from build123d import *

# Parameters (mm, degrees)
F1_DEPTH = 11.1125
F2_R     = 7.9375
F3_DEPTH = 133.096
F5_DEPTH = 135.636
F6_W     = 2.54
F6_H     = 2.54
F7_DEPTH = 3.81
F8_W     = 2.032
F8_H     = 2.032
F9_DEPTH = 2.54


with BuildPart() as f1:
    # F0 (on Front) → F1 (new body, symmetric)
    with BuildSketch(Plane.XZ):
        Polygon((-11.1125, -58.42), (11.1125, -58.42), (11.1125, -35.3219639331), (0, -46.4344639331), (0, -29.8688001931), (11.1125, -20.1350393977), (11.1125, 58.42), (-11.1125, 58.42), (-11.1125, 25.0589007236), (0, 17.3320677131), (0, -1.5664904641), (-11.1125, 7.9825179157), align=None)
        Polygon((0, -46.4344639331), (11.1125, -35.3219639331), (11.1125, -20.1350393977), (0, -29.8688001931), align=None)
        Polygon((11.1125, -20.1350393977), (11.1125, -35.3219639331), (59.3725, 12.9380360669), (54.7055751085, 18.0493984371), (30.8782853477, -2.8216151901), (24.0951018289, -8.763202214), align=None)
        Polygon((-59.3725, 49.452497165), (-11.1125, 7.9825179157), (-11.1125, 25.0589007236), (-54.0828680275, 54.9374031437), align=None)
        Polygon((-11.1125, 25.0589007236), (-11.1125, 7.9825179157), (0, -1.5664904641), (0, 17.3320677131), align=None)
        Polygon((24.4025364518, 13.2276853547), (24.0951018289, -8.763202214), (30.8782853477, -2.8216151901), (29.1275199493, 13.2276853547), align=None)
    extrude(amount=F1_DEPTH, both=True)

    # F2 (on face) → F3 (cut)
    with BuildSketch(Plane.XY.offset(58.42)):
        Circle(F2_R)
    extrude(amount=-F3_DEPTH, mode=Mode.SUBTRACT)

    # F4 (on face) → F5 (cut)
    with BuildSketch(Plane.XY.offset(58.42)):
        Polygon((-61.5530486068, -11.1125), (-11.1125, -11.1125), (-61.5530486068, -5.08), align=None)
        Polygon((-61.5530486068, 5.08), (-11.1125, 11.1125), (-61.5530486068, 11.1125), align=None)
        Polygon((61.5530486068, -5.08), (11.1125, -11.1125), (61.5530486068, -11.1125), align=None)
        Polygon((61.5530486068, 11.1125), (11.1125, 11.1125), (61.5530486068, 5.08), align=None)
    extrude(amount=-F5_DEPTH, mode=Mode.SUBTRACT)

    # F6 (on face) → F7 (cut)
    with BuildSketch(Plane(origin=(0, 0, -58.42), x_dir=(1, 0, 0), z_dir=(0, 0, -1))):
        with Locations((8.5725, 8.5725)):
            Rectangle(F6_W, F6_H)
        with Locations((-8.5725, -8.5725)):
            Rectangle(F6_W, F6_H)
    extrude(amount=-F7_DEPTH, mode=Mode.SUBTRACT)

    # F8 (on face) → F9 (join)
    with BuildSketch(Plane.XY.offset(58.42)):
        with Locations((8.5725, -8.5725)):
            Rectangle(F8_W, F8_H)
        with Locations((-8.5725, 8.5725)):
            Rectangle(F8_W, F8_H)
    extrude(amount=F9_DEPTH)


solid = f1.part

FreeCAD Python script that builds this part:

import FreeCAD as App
import Part
import Sketcher

V = App.Vector
Q = App.Units.Quantity


def add_polygon(sketch, points):
    """Adds a closed chain of lines whose ends are joined by coincident constraints."""
    first, n = sketch.GeometryCount, len(points)
    for a, b in zip(points, points[1:] + points[:1]):
        sketch.addGeometry(Part.LineSegment(App.Vector(*a, 0), App.Vector(*b, 0)), False)
    for i in range(n):
        sketch.addConstraint(Sketcher.Constraint("Coincident", first + i, 2, first + (i + 1) % n, 1))

doc = App.newDocument("Part")
body = doc.addObject("PartDesign::Body", "Body")

sketch1 = body.newObject("Sketcher::SketchObject", "Sketch")
sketch1.AttachmentSupport = (doc.getObject("XZ_Plane"), [""])
sketch1.MapMode = "FlatFace"
add_polygon(sketch1, [(-11.1, -58.4), (11.1, -58.4), (11.1, -35.3), (59.4, 12.9), (54.7, 18), (30.9, -2.8), (29.1, 13.2), (24.4, 13.2), (24.1, -8.8), (11.1, -20.1), (11.1, 58.4), (-11.1, 58.4), (-11.1, 25.1), (-54.1, 54.9), (-59.4, 49.5), (-11.1, 8)])
sketch1.addConstraint([
    Sketcher.Constraint("Horizontal", 0),
    Sketcher.Constraint("Vertical", 1),
    Sketcher.Constraint("Horizontal", 6),
    Sketcher.Constraint("Vertical", 9),
    Sketcher.Constraint("Horizontal", 10),
    Sketcher.Constraint("Vertical", 11),
    Sketcher.Constraint("Vertical", 15),
    Sketcher.Constraint("Symmetric", 0, 2, 10, 2, -1, 1),
    Sketcher.Constraint("Parallel", 4, 8),
    Sketcher.Constraint("Vertical", 1, 2, 8, 2),
    Sketcher.Constraint("Vertical", 11, 2, 14, 2),
    Sketcher.Constraint("Angle", 2, Q("45 deg")),
    Sketcher.Constraint("Distance", 13, Q("0.3 in")),
    Sketcher.Constraint("DistanceY", 0, 2, -1, 1, Q("2.3 in")),
    Sketcher.Constraint("DistanceX", 1, 2, 2, 2, Q("1.9 in")),
    Sketcher.Constraint("DistanceX", 13, 2, 10, 2, Q("1.9 in")),
    Sketcher.Constraint("DistanceX", 0, 1, 0, 2, Q("0.875 in")),
    Sketcher.Constraint("DistanceY", 11, 2, 11, 1, Q("33.361099 mm")),
    Sketcher.Constraint("DistanceY", 9, 1, 9, 2, Q("78.555039 mm")),
    Sketcher.Constraint("DistanceY", -1, 1, 3, 2, Q("18.049398 mm")),
    Sketcher.Constraint("DistanceX", -1, 1, 7, 2, Q("24.095102 mm")),
    Sketcher.Constraint("DistanceY", 4, 2, 5, 2, Q("16.049301 mm")),
    Sketcher.Constraint("DistanceY", 7, 2, 3, 2, Q("26.812601 mm")),
    Sketcher.Constraint("Distance", 3, Q("6.921431 mm")),
    Sketcher.Constraint("Distance", 5, Q("16.144511 mm")),
    Sketcher.Constraint("Distance", 12, Q("52.337152 mm")),
    Sketcher.Constraint("DistanceX", 6, 2, 6, 1, Q("4.724983 mm")),
    Sketcher.Constraint("DistanceY", 1, 1, 1, 2, Q("23.098036 mm")),
    Sketcher.Constraint("DistanceY", 15, 2, 15, 1, Q("66.402518 mm")),
    Sketcher.Constraint("DistanceX", -1, 1, 5, 2, Q("29.12752 mm")),
    Sketcher.Constraint("DistanceX", 12, 2, -1, 1, Q("54.082868 mm")),
])
pad1 = body.newObject("PartDesign::Pad", "Pad")
pad1.Profile = sketch1
pad1.Length = Q("0.875 in")
pad1.Midplane = True

sketch2 = body.newObject("Sketcher::SketchObject", "Sketch001")
sketch2.AttachmentSupport = (doc.getObject("XY_Plane"), [""])
sketch2.MapMode = "FlatFace"
sketch2.AttachmentOffset = App.Placement(V(0, 0, 2.3 * 25.4), App.Rotation())
sketch2.addGeometry(Part.Circle(V(0, 0, 0), V(0, 0, 1), 8), False)
sketch2.addConstraint([
    Sketcher.Constraint("Coincident", 0, 3, -1, 1),
    Sketcher.Constraint("Diameter", 0, Q("0.625 in")),
])
pocket1 = body.newObject("PartDesign::Pocket", "Pocket")
pocket1.Profile = sketch2
pocket1.Length = Q("5.24 in")

sketch3 = body.newObject("Sketcher::SketchObject", "Sketch002")
sketch3.AttachmentSupport = (doc.getObject("XY_Plane"), [""])
sketch3.MapMode = "FlatFace"
sketch3.AttachmentOffset = App.Placement(V(0, 0, 2.3 * 25.4), App.Rotation())
add_polygon(sketch3, [(-62, -11), (-11, -11), (-62, -5)])
add_polygon(sketch3, [(-62, 5), (-11, 11), (-62, 11)])
add_polygon(sketch3, [(62, -5), (11, -11), (62, -11)])
add_polygon(sketch3, [(62, 11), (11, 11), (62, 5)])
sketch3.addConstraint([
    Sketcher.Constraint("Horizontal", 0),
    Sketcher.Constraint("Vertical", 2),
    Sketcher.Constraint("Horizontal", 4),
    Sketcher.Constraint("Vertical", 5),
    Sketcher.Constraint("Horizontal", 7),
    Sketcher.Constraint("Vertical", 8),
    Sketcher.Constraint("Horizontal", 9),
    Sketcher.Constraint("Vertical", 11),
    Sketcher.Constraint("Symmetric", 3, 2, 6, 2, -1, 1),
    Sketcher.Constraint("Symmetric", 5, 2, 8, 2, -1, 1),
    Sketcher.Constraint("Symmetric", 0, 2, 9, 2, -1, 1),
    Sketcher.Constraint("Symmetric", 1, 2, 10, 2, -1, 1),
    Sketcher.Constraint("Symmetric", 0, 2, 6, 2, -2),
    Sketcher.Constraint("Symmetric", 1, 2, 8, 2, -2),
    Sketcher.Constraint("Distance", 1, Q("2 in")),
    Sketcher.Constraint("DistanceY", 1, 2, -1, 1, Q("0.2 in")),
    Sketcher.Constraint("DistanceY", 2, 2, 2, 1, Q("0.2375 in")),
    Sketcher.Constraint("DistanceX", 0, 2, -1, 1, Q("0.4375 in")),
])
pocket2 = body.newObject("PartDesign::Pocket", "Pocket001")
pocket2.Profile = sketch3
pocket2.Length = Q("5.34 in")

sketch4 = body.newObject("Sketcher::SketchObject", "Sketch003")
sketch4.AttachmentSupport = (doc.getObject("XY_Plane"), [""])
sketch4.MapMode = "FlatFace"
sketch4.AttachmentOffset = App.Placement(V(0, 0, -2.3 * 25.4), App.Rotation())
add_polygon(sketch4, [(7.3, -9.8), (7.3, -7.3), (9.8, -7.3), (9.8, -9.8)])
add_polygon(sketch4, [(-9.8, 7.3), (-9.8, 9.8), (-7.3, 9.8), (-7.3, 7.3)])
sketch4.addConstraint([
    Sketcher.Constraint("Vertical", 0),
    Sketcher.Constraint("Horizontal", 1),
    Sketcher.Constraint("Vertical", 2),
    Sketcher.Constraint("Horizontal", 3),
    Sketcher.Constraint("Vertical", 4),
    Sketcher.Constraint("Horizontal", 5),
    Sketcher.Constraint("Vertical", 6),
    Sketcher.Constraint("Horizontal", 7),
    Sketcher.Constraint("Symmetric", 2, 2, 4, 2, -1, 1),
    Sketcher.Constraint("Symmetric", 0, 2, 6, 2, -1, 1),
    Sketcher.Constraint("Equal", 7, 0),
    Sketcher.Constraint("DistanceX", 1, 1, 1, 2, Q("0.1 in")),
    Sketcher.Constraint("DistanceX", 4, 2, 0, 2, Q("0.675 in")),
    Sketcher.Constraint("DistanceY", 0, 2, 4, 2, Q("0.675 in")),
])
pocket3 = body.newObject("PartDesign::Pocket", "Pocket002")
pocket3.Profile = sketch4
pocket3.Length = Q("0.15 in")
pocket3.Reversed = True

sketch5 = body.newObject("Sketcher::SketchObject", "Sketch004")
sketch5.AttachmentSupport = (doc.getObject("XY_Plane"), [""])
sketch5.MapMode = "FlatFace"
sketch5.AttachmentOffset = App.Placement(V(0, 0, 2.3 * 25.4), App.Rotation())
add_polygon(sketch5, [(7.6, -7.6), (7.6, -9.6), (9.6, -9.6), (9.6, -7.6)])
add_polygon(sketch5, [(-9.6, 9.6), (-9.6, 7.6), (-7.6, 7.6), (-7.6, 9.6)])
sketch5.addConstraint([
    Sketcher.Constraint("Vertical", 0),
    Sketcher.Constraint("Horizontal", 1),
    Sketcher.Constraint("Vertical", 2),
    Sketcher.Constraint("Horizontal", 3),
    Sketcher.Constraint("Vertical", 4),
    Sketcher.Constraint("Horizontal", 5),
    Sketcher.Constraint("Vertical", 6),
    Sketcher.Constraint("Horizontal", 7),
    Sketcher.Constraint("Symmetric", 2, 2, 4, 2, -1, 1),
    Sketcher.Constraint("Symmetric", 0, 2, 6, 2, -1, 1),
    Sketcher.Constraint("Equal", 7, 0),
    Sketcher.Constraint("DistanceX", 1, 1, 1, 2, Q("0.08 in")),
    Sketcher.Constraint("DistanceX", 4, 2, 3, 2, Q("0.675 in")),
    Sketcher.Constraint("DistanceY", 3, 2, 4, 2, Q("0.595 in")),
])
pad2 = body.newObject("PartDesign::Pad", "Pad001")
pad2.Profile = sketch5
pad2.Length = Q("0.1 in")

doc.recompute()
